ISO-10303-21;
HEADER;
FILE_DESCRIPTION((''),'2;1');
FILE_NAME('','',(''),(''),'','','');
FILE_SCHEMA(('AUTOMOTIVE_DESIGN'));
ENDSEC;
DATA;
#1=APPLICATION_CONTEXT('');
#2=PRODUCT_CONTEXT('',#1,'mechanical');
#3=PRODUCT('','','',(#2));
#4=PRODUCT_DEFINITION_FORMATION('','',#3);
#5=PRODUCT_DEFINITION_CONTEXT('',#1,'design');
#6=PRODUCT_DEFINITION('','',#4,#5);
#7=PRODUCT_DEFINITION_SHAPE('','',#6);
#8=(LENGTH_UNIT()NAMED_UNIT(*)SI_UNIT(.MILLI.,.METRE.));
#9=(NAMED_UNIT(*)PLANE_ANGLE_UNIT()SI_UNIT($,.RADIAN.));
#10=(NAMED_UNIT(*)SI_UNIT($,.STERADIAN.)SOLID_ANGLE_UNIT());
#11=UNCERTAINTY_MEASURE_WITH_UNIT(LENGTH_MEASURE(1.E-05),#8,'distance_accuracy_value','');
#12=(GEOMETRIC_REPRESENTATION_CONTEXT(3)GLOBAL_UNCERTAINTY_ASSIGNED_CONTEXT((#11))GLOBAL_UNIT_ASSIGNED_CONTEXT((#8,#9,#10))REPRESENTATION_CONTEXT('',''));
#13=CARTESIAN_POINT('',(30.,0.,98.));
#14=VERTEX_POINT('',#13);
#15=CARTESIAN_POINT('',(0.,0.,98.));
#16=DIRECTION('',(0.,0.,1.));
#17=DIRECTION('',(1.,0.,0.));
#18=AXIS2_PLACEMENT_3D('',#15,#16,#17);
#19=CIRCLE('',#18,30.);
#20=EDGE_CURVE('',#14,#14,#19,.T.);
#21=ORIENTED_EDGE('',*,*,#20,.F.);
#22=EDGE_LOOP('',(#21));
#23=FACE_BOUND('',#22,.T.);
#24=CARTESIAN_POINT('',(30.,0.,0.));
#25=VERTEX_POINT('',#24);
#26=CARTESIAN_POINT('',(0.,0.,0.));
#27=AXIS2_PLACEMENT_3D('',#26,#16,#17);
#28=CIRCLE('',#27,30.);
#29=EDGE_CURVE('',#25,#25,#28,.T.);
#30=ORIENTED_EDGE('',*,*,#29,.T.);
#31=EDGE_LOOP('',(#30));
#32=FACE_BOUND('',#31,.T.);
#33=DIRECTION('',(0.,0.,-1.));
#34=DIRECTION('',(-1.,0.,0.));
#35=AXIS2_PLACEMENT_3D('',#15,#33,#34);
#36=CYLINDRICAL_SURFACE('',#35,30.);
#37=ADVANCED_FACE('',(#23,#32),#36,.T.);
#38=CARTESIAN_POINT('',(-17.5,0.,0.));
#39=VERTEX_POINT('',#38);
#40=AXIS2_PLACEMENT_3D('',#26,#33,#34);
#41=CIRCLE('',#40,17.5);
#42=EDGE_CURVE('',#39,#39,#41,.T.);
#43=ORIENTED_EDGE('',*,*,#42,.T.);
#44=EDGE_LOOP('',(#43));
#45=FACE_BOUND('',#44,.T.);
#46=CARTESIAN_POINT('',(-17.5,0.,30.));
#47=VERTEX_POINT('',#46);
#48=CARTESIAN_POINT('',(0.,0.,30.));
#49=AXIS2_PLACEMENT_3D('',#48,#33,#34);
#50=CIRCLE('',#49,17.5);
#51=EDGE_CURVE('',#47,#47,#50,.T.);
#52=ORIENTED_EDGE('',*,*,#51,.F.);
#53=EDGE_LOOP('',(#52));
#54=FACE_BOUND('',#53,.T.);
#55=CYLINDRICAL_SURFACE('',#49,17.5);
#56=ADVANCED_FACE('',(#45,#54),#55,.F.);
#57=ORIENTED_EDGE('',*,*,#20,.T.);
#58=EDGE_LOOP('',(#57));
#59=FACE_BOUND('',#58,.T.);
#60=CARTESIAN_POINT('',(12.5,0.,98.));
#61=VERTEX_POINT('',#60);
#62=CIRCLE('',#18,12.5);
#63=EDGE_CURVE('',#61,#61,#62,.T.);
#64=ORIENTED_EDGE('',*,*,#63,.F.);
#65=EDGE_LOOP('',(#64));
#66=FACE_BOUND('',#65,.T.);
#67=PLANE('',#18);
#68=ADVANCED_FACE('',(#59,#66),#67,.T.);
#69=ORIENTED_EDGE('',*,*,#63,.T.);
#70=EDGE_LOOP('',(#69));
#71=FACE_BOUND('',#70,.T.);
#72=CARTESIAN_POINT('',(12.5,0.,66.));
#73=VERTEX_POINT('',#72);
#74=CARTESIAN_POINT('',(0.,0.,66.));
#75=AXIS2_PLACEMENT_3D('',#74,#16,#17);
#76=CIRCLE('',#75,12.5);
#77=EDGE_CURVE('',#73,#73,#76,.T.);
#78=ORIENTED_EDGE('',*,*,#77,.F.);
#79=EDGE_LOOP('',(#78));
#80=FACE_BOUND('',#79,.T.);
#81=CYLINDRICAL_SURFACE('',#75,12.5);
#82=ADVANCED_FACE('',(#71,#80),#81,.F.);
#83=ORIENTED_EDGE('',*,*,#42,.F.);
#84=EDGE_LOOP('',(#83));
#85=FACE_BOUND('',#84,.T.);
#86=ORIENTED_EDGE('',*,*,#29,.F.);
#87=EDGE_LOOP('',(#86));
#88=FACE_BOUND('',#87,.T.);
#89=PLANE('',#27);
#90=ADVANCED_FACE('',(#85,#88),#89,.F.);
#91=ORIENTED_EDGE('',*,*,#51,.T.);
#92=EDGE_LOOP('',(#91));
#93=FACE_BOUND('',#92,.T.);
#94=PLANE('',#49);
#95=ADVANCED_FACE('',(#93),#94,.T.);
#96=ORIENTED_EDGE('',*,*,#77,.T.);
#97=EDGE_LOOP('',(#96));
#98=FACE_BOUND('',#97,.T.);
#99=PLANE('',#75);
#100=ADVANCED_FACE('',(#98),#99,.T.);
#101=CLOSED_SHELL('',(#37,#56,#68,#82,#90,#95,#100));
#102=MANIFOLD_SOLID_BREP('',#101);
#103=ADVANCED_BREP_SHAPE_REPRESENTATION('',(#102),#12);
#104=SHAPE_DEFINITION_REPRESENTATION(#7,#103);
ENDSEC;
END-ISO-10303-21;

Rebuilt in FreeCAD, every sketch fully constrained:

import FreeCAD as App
import Part
import Sketcher

doc = App.newDocument("Part")
params = doc.addObject("Spreadsheet::Sheet", "Params")
for row, (alias, value) in enumerate([
    ("sketch1_diameter", "60 mm"),
    ("pad1_length", "98 mm"),
    ("sketch2_diameter", "25 mm"),
    ("pocket1_length", "32 mm"),
    ("sketch3_diameter", "35 mm"),
    ("pocket2_length", "30 mm"),
], start=1):
    params.set(f"A{row}", alias)
    params.set(f"B{row}", "=" + value)
    params.setAlias(f"B{row}", alias)

body = doc.addObject("PartDesign::Body", "Body")

# Sketch on XY plane
sketch1 = body.newObject("Sketcher::SketchObject", "Sketch")
sketch1.AttachmentSupport = (doc.getObject("XY_Plane"), [""])
sketch1.MapMode = "FlatFace"
sketch1.addGeometry(Part.Circle(App.Vector(0, 0, 0), App.Vector(0, 0, 1), 30), False)
sketch1.addConstraint([
    Sketcher.Constraint("Coincident", 0, 3, -1, 1),
    Sketcher.Constraint("Diameter", 0, 60.0),
])
sketch1.setExpression("Constraints[1]", "Params.sketch1_diameter")
pad1 = body.newObject("PartDesign::Pad", "Pad")
pad1.Profile = sketch1
pad1.setExpression("Length", "Params.pad1_length")

# Sketch on XY plane
sketch2 = body.newObject("Sketcher::SketchObject", "Sketch001")
sketch2.AttachmentSupport = (doc.getObject("XY_Plane"), [""])
sketch2.MapMode = "FlatFace"
sketch2.AttachmentOffset = App.Placement(App.Vector(0, 0, 98), App.Rotation())
sketch2.addGeometry(Part.Circle(App.Vector(0, 0, 0), App.Vector(0, 0, 1), 12), False)
sketch2.addConstraint([
    Sketcher.Constraint("Coincident", 0, 3, -1, 1),
    Sketcher.Constraint("Diameter", 0, 25.0),
])
sketch2.setExpression("Constraints[1]", "Params.sketch2_diameter")
pocket1 = body.newObject("PartDesign::Pocket", "Pocket")
pocket1.Profile = sketch2
pocket1.setExpression("Length", "Params.pocket1_length")

# Sketch on XY plane
sketch3 = body.newObject("Sketcher::SketchObject", "Sketch002")
sketch3.AttachmentSupport = (doc.getObject("XY_Plane"), [""])
sketch3.MapMode = "FlatFace"
sketch3.addGeometry(Part.Circle(App.Vector(0, 0, 0), App.Vector(0, 0, 1), 18), False)
sketch3.addConstraint([
    Sketcher.Constraint("Coincident", 0, 3, -1, 1),
    Sketcher.Constraint("Diameter", 0, 35.0),
])
sketch3.setExpression("Constraints[1]", "Params.sketch3_diameter")
pocket2 = body.newObject("PartDesign::Pocket", "Pocket001")
pocket2.Profile = sketch3
pocket2.setExpression("Length", "Params.pocket2_length")
pocket2.Reversed = True

doc.recompute()
